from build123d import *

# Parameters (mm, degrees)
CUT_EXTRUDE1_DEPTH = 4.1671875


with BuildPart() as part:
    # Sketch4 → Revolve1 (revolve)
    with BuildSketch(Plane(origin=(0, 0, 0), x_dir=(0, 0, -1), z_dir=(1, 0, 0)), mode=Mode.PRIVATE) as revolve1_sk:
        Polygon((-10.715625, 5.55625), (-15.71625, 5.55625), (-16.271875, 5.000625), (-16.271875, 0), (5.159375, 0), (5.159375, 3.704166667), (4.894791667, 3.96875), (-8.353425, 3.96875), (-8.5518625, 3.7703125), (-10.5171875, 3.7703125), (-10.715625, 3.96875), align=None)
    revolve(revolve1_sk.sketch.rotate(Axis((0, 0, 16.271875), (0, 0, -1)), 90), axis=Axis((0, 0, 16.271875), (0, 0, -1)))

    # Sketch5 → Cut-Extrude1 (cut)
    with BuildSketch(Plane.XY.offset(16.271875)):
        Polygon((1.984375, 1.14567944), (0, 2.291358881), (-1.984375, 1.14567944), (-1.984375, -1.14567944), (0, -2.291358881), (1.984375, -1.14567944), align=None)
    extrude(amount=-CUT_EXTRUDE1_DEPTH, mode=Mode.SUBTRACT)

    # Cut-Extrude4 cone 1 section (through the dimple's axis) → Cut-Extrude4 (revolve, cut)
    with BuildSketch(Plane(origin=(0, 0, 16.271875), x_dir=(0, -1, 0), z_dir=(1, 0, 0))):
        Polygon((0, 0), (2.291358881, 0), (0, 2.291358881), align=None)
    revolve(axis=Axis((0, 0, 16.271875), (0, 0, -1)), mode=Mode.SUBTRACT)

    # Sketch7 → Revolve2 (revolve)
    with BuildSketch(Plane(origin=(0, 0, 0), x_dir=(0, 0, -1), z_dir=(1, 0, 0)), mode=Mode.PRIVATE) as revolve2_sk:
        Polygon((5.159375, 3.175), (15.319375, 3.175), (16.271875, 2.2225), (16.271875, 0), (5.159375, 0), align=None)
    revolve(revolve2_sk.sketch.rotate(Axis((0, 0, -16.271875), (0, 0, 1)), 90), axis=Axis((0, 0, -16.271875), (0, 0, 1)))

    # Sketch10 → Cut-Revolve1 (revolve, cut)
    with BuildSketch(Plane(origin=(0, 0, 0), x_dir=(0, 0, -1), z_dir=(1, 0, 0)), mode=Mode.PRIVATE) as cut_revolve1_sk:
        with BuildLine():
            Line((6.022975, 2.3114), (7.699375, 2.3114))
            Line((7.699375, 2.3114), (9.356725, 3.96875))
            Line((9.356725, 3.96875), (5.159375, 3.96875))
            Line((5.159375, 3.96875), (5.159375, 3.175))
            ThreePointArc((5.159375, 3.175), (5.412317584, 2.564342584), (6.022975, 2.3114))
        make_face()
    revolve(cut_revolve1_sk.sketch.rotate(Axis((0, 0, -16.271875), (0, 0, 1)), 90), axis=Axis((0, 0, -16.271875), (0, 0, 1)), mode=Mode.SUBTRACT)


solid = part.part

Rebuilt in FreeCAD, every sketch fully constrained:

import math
import FreeCAD as App
import Part
import Sketcher
from FreeCAD import Vector
Q = App.Units.Quantity


def add_polygon(sketch, points):
    """Adds a closed chain of lines whose ends are joined by coincident constraints."""
    first, n = sketch.GeometryCount, len(points)
    for a, b in zip(points, points[1:] + points[:1]):
        sketch.addGeometry(Part.LineSegment(App.Vector(*a, 0), App.Vector(*b, 0)), False)
    for i in range(n):
        sketch.addConstraint(Sketcher.Constraint("Coincident", first + i, 2, first + (i + 1) % n, 1))

doc = App.newDocument("Part")
body = doc.addObject("PartDesign::Body", "Body")

# Sketch on YZ plane
sketch1 = doc.addObject("Sketcher::SketchObject", "Sketch")
body.addObject(sketch1)
sketch1.AttachmentSupport = (doc.YZ_Plane, [""])
sketch1.MapMode = "FlatFace"
add_polygon(sketch1, [(5.56, 10.72), (5.56, 15.72), (5, 16.27), (0, 16.27), (0, -5.16), (3.7, -5.16), (3.97, -4.89), (3.97, 8.35), (3.77, 8.55), (3.77, 10.52), (3.97, 10.72)])  # lines 0-10
sketch1.addConstraint([
    Sketcher.Constraint("Vertical", 0),
    Sketcher.Constraint("Horizontal", 2),
    Sketcher.Constraint("Vertical", 3),
    Sketcher.Constraint("Horizontal", 4),
    Sketcher.Constraint("Vertical", 6),
    Sketcher.Constraint("Vertical", 8),
    Sketcher.Constraint("Horizontal", 10),
    Sketcher.Constraint("PointOnObject", 2, 2, -2),
    Sketcher.Constraint("Perpendicular", 1, 5),
    Sketcher.Constraint("Perpendicular", 5, 7),
    Sketcher.Constraint("Perpendicular", 7, 9),
    Sketcher.Constraint("Vertical", 6, 2, 9, 2),
    Sketcher.Constraint("Equal", 2, 0),
    Sketcher.Constraint("Equal", 7, 9),
    Sketcher.Constraint("DistanceX", 10, 1, 10, 2, Q("0.0625 in")),
    Sketcher.Constraint("DistanceY", 3, 2, 3, 1, Q("0.84375 in")),
    Sketcher.Constraint("DistanceX", -1, 1, 0, 2, Q("0.21875 in")),
    Sketcher.Constraint("DistanceY", -1, 1, 1, 2, Q("0.640625 in")),
    Sketcher.Constraint("DistanceY", 4, 2, 6, 2, Q("0.532 in")),
    Sketcher.Constraint("DistanceX", 2, 2, 2, 1, 5.000625),
    Sketcher.Constraint("DistanceX", 4, 1, 4, 2, 3.704167),
    Sketcher.Constraint("DistanceY", 8, 1, 8, 2, 1.965325),
])
revolution = doc.addObject("PartDesign::Revolution", "Revolution")
body.addObject(revolution)
revolution.Profile = sketch1
revolution.ReferenceAxis = (sketch1, ["V_Axis"])
revolution.Angle = 360

# Sketch on XY plane
sketch2 = doc.addObject("Sketcher::SketchObject", "Sketch001")
body.addObject(sketch2)
sketch2.AttachmentSupport = (doc.XY_Plane, [""])
sketch2.MapMode = "FlatFace"
sketch2.AttachmentOffset = App.Placement(Vector(0, 0, 0.640625 * 25.4), App.Rotation())
add_polygon(sketch2, [(2, 1.1), (0, 2.3), (-2, 1.1), (-2, -1.1), (0, -2.3), (2, -1.1)])  # lines 0-5
sketch2.addConstraint([
    Sketcher.Constraint("Vertical", 2),
    Sketcher.Constraint("Vertical", 5),
    Sketcher.Constraint("Symmetric", 0, 2, 3, 2, -1, 1),
    Sketcher.Constraint("Symmetric", 1, 2, 4, 2, -1, 1),
    Sketcher.Constraint("PointOnObject", 0, 2, -2),
    Sketcher.Constraint("Parallel", 0, 3),
    Sketcher.Constraint("Horizontal", 2, 2, 4, 2),
    Sketcher.Constraint("Angle", 0, Q("150 deg")),
    Sketcher.Constraint("DistanceX", 1, 2, -1, 1, Q("0.078125 in")),
    Sketcher.Constraint("DistanceY", 2, 2, 2, 1, 2.291359),
])
pocket1 = doc.addObject("PartDesign::Pocket", "Pocket")
body.addObject(pocket1)
pocket1.Profile = sketch2
pocket1.Length = 4.167187

# Sketch on YZ plane
sketch3 = doc.addObject("Sketcher::SketchObject", "Sketch002")
body.addObject(sketch3)
sketch3.AttachmentSupport = (doc.YZ_Plane, [""])
sketch3.MapMode = "FlatFace"
add_polygon(sketch3, [(0, 16.3), (-2.3, 16.3), (0, 14)])  # lines 0-2
sketch3.addConstraint([
    Sketcher.Constraint("Horizontal", 0),
    Sketcher.Constraint("Vertical", 2),
    Sketcher.Constraint("PointOnObject", 1, 2, -2),
    Sketcher.Constraint("Equal", 0, 2),
    Sketcher.Constraint("DistanceY", -1, 1, 0, 2, Q("0.640625 in")),
    Sketcher.Constraint("DistanceX", 0, 2, 0, 1, 2.291359),
])
groove = doc.addObject("PartDesign::Groove", "Groove")
body.addObject(groove)
groove.Profile = sketch3
groove.ReferenceAxis = (sketch3, ["V_Axis"])
groove.Angle = 360

# Sketch on YZ plane
sketch4 = doc.addObject("Sketcher::SketchObject", "Sketch003")
body.addObject(sketch4)
sketch4.AttachmentSupport = (doc.YZ_Plane, [""])
sketch4.MapMode = "FlatFace"
add_polygon(sketch4, [(3.2, -15.3), (3.2, -5.2), (0, -5.2), (0, -16.3), (2.2, -16.3)])  # lines 0-4
sketch4.addConstraint([
    Sketcher.Constraint("Vertical", 0),
    Sketcher.Constraint("Horizontal", 1),
    Sketcher.Constraint("Vertical", 2),
    Sketcher.Constraint("Horizontal", 3),
    Sketcher.Constraint("PointOnObject", 1, 2, -2),
    Sketcher.Constraint("DistanceY", 0, 1, 0, 2, Q("0.4 in")),
    Sketcher.Constraint("Angle", 4, Q("45 deg")),
    Sketcher.Constraint("DistanceX", 1, 2, 1, 1, Q("0.125 in")),
    Sketcher.Constraint("DistanceY", 2, 2, 2, 1, Q("0.4375 in")),
    Sketcher.Constraint("DistanceY", 0, 2, -1, 1, Q("0.203125 in")),
])
revolution2 = doc.addObject("PartDesign::Revolution", "Revolution001")
body.addObject(revolution2)
revolution2.Profile = sketch4
revolution2.ReferenceAxis = (sketch4, ["V_Axis"])
revolution2.Angle = 360

# Sketch on YZ plane
sketch5 = doc.addObject("Sketcher::SketchObject", "Sketch004")
body.addObject(sketch5)
sketch5.AttachmentSupport = (doc.YZ_Plane, [""])
sketch5.MapMode = "FlatFace"
sketch5.addGeometry([
    Part.LineSegment(Vector(2.3, -6, 0), Vector(2.3, -7.7, 0)),  # 0
    Part.LineSegment(Vector(2.3, -7.7, 0), Vector(4, -9.4, 0)),  # 1
    Part.LineSegment(Vector(4, -9.4, 0), Vector(4, -5.2, 0)),  # 2
    Part.LineSegment(Vector(4, -5.2, 0), Vector(3.2, -5.2, 0)),  # 3
    Part.ArcOfCircle(Part.Circle(Vector(3.2, -6, 0), Vector(0, 0, 1), 0.9), math.radians(90), math.radians(180)),  # 4
], False)
sketch5.addConstraint([
    Sketcher.Constraint("Coincident", 0, 2, 1, 1),
    Sketcher.Constraint("Coincident", 1, 2, 2, 1),
    Sketcher.Constraint("Coincident", 2, 2, 3, 1),
    Sketcher.Constraint("Tangent", 3, 2, 4, 1),
    Sketcher.Constraint("Tangent", 4, 2, 0, 1),
    Sketcher.Constraint("Vertical", 0),
    Sketcher.Constraint("Vertical", 2),
    Sketcher.Constraint("Horizontal", 3),
    Sketcher.Constraint("Angle", 1, Q("-45 deg")),
    Sketcher.Constraint("Radius", 4, Q("0.034 in")),
    Sketcher.Constraint("DistanceY", 0, 2, 2, 2, Q("0.1 in")),
    Sketcher.Constraint("DistanceX", 3, 2, 3, 1, Q("0.03125 in")),
    Sketcher.Constraint("DistanceX", -1, 1, 4, 3, Q("0.125 in")),
    Sketcher.Constraint("DistanceY", 2, 2, -1, 1, Q("0.203125 in")),
])
groove2 = doc.addObject("PartDesign::Groove", "Groove001")
body.addObject(groove2)
groove2.Profile = sketch5
groove2.ReferenceAxis = (sketch5, ["V_Axis"])
groove2.Angle = 360

doc.recompute()
